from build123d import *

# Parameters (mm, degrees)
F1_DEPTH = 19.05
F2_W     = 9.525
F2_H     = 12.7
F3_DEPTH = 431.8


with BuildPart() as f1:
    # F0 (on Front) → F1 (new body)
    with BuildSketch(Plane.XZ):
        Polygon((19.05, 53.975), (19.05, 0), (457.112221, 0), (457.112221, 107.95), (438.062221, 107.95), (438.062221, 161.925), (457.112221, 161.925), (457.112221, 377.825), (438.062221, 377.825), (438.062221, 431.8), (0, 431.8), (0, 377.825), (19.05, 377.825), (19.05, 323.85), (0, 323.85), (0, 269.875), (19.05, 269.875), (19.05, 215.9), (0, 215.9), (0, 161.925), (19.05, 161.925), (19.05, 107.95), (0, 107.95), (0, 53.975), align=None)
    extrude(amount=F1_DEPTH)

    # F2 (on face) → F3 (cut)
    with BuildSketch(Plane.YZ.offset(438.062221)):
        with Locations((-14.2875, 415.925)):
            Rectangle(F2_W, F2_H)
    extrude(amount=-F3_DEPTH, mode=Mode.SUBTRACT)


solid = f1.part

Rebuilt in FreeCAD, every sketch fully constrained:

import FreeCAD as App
import Part
import Sketcher

V = App.Vector
Q = App.Units.Quantity


def add_polygon(sketch, points):
    """Adds a closed chain of lines whose ends are joined by coincident constraints."""
    first, n = sketch.GeometryCount, len(points)
    for a, b in zip(points, points[1:] + points[:1]):
        sketch.addGeometry(Part.LineSegment(App.Vector(*a, 0), App.Vector(*b, 0)), False)
    for i in range(n):
        sketch.addConstraint(Sketcher.Constraint("Coincident", first + i, 2, first + (i + 1) % n, 1))

doc = App.newDocument("Part")
body = doc.addObject("PartDesign::Body", "Body")

# Sketch on XZ plane
sketch1 = doc.addObject("Sketcher::SketchObject", "Sketch")
body.addObject(sketch1)
sketch1.AttachmentSupport = (doc.XZ_Plane, [""])
sketch1.MapMode = "FlatFace"
add_polygon(sketch1, [(19, 54), (19, 0), (457, 0), (457, 108), (438, 108), (438, 162), (457, 162), (457, 378), (438, 378), (438, 432), (0, 432), (0, 378), (19, 378), (19, 324), (0, 324), (0, 270), (19, 270), (19, 216), (0, 216), (0, 162), (19, 162), (19, 108), (0, 108), (0, 54)])  # lines 0-23
sketch1.addConstraint(Sketcher.Constraint("Vertical", 0))
sketch1.addConstraint(Sketcher.Constraint("Horizontal", 1))
sketch1.addConstraint(Sketcher.Constraint("Vertical", 2))
sketch1.addConstraint(Sketcher.Constraint("Horizontal", 3))
sketch1.addConstraint(Sketcher.Constraint("Vertical", 4))
sketch1.addConstraint(Sketcher.Constraint("Horizontal", 5))
sketch1.addConstraint(Sketcher.Constraint("Vertical", 6))
sketch1.addConstraint(Sketcher.Constraint("Horizontal", 7))
sketch1.addConstraint(Sketcher.Constraint("Vertical", 8))
sketch1.addConstraint(Sketcher.Constraint("Horizontal", 9))
sketch1.addConstraint(Sketcher.Constraint("Vertical", 10))
sketch1.addConstraint(Sketcher.Constraint("Horizontal", 11))
sketch1.addConstraint(Sketcher.Constraint("Vertical", 12))
sketch1.addConstraint(Sketcher.Constraint("Horizontal", 13))
sketch1.addConstraint(Sketcher.Constraint("Vertical", 14))
sketch1.addConstraint(Sketcher.Constraint("Horizontal", 15))
sketch1.addConstraint(Sketcher.Constraint("Vertical", 16))
sketch1.addConstraint(Sketcher.Constraint("Horizontal", 17))
sketch1.addConstraint(Sketcher.Constraint("Vertical", 18))
sketch1.addConstraint(Sketcher.Constraint("Horizontal", 19))
sketch1.addConstraint(Sketcher.Constraint("Vertical", 20))
sketch1.addConstraint(Sketcher.Constraint("Horizontal", 21))
sketch1.addConstraint(Sketcher.Constraint("Vertical", 22))
sketch1.addConstraint(Sketcher.Constraint("Horizontal", 23))
sketch1.addConstraint(Sketcher.Constraint("PointOnObject", 0, 2, -1))
sketch1.addConstraint(Sketcher.Constraint("PointOnObject", 9, 2, -2))
sketch1.addConstraint(Sketcher.Constraint("PointOnObject", 13, 2, -2))
sketch1.addConstraint(Sketcher.Constraint("PointOnObject", 17, 2, -2))
sketch1.addConstraint(Sketcher.Constraint("PointOnObject", 21, 2, -2))
sketch1.addConstraint(Sketcher.Constraint("Horizontal", 7, 2, 10, 2))
sketch1.addConstraint(Sketcher.Constraint("Horizontal", 5, 2, 18, 2))
sketch1.addConstraint(Sketcher.Constraint("Horizontal", 3, 2, 20, 2))
sketch1.addConstraint(Sketcher.Constraint("Vertical", 2, 2, 5, 2))
sketch1.addConstraint(Sketcher.Constraint("Vertical", 4, 2, 7, 2))
sketch1.addConstraint(Sketcher.Constraint("Vertical", 0, 2, 11, 2))
sketch1.addConstraint(Sketcher.Constraint("Vertical", 12, 2, 15, 2))
sketch1.addConstraint(Sketcher.Constraint("Vertical", 16, 2, 19, 2))
sketch1.addConstraint(Sketcher.Constraint("Equal", 1, 9))
sketch1.addConstraint(Sketcher.Constraint("Equal", 0, 4))
sketch1.addConstraint(Sketcher.Constraint("Equal", 4, 8))
sketch1.addConstraint(Sketcher.Constraint("Equal", 10, 12))
sketch1.addConstraint(Sketcher.Constraint("Equal", 12, 14))
sketch1.addConstraint(Sketcher.Constraint("Equal", 14, 16))
sketch1.addConstraint(Sketcher.Constraint("Equal", 16, 18))
sketch1.addConstraint(Sketcher.Constraint("Equal", 20, 22))
sketch1.addConstraint(Sketcher.Constraint("DistanceY", 6, 1, 6, 2, Q("8.5 in")))
sketch1.addConstraint(Sketcher.Constraint("DistanceX", 3, 2, 3, 1, Q("0.75 in")))
sketch1.addConstraint(Sketcher.Constraint("DistanceX", 1, 1, 1, 2, Q("438.062221 mm")))
pad1 = doc.addObject("PartDesign::Pad", "Pad")
body.addObject(pad1)
pad1.Profile = sketch1
pad1.Length = Q("0.75 in")

# Sketch on YZ plane
sketch2 = doc.addObject("Sketcher::SketchObject", "Sketch001")
body.addObject(sketch2)
sketch2.AttachmentSupport = (doc.YZ_Plane, [""])
sketch2.MapMode = "FlatFace"
sketch2.AttachmentOffset = App.Placement(V(0, 0, 438.062221), App.Rotation())
add_polygon(sketch2, [(-19, 422), (-19, 410), (-10, 410), (-10, 422)])  # lines 0-3
sketch2.addConstraint(Sketcher.Constraint("Vertical", 0))
sketch2.addConstraint(Sketcher.Constraint("Horizontal", 1))
sketch2.addConstraint(Sketcher.Constraint("Vertical", 2))
sketch2.addConstraint(Sketcher.Constraint("Horizontal", 3))
sketch2.addConstraint(Sketcher.Constraint("DistanceY", 0, 2, 0, 1, Q("0.5 in")))
sketch2.addConstraint(Sketcher.Constraint("DistanceX", 1, 1, 1, 2, Q("0.375 in")))
sketch2.addConstraint(Sketcher.Constraint("DistanceX", 0, 2, -1, 1, Q("0.75 in")))
sketch2.addConstraint(Sketcher.Constraint("DistanceY", -1, 1, 0, 2, Q("16.125 in")))
pocket1 = doc.addObject("PartDesign::Pocket", "Pocket")
body.addObject(pocket1)
pocket1.Profile = sketch2
pocket1.Length = Q("17 in")

doc.recompute()
